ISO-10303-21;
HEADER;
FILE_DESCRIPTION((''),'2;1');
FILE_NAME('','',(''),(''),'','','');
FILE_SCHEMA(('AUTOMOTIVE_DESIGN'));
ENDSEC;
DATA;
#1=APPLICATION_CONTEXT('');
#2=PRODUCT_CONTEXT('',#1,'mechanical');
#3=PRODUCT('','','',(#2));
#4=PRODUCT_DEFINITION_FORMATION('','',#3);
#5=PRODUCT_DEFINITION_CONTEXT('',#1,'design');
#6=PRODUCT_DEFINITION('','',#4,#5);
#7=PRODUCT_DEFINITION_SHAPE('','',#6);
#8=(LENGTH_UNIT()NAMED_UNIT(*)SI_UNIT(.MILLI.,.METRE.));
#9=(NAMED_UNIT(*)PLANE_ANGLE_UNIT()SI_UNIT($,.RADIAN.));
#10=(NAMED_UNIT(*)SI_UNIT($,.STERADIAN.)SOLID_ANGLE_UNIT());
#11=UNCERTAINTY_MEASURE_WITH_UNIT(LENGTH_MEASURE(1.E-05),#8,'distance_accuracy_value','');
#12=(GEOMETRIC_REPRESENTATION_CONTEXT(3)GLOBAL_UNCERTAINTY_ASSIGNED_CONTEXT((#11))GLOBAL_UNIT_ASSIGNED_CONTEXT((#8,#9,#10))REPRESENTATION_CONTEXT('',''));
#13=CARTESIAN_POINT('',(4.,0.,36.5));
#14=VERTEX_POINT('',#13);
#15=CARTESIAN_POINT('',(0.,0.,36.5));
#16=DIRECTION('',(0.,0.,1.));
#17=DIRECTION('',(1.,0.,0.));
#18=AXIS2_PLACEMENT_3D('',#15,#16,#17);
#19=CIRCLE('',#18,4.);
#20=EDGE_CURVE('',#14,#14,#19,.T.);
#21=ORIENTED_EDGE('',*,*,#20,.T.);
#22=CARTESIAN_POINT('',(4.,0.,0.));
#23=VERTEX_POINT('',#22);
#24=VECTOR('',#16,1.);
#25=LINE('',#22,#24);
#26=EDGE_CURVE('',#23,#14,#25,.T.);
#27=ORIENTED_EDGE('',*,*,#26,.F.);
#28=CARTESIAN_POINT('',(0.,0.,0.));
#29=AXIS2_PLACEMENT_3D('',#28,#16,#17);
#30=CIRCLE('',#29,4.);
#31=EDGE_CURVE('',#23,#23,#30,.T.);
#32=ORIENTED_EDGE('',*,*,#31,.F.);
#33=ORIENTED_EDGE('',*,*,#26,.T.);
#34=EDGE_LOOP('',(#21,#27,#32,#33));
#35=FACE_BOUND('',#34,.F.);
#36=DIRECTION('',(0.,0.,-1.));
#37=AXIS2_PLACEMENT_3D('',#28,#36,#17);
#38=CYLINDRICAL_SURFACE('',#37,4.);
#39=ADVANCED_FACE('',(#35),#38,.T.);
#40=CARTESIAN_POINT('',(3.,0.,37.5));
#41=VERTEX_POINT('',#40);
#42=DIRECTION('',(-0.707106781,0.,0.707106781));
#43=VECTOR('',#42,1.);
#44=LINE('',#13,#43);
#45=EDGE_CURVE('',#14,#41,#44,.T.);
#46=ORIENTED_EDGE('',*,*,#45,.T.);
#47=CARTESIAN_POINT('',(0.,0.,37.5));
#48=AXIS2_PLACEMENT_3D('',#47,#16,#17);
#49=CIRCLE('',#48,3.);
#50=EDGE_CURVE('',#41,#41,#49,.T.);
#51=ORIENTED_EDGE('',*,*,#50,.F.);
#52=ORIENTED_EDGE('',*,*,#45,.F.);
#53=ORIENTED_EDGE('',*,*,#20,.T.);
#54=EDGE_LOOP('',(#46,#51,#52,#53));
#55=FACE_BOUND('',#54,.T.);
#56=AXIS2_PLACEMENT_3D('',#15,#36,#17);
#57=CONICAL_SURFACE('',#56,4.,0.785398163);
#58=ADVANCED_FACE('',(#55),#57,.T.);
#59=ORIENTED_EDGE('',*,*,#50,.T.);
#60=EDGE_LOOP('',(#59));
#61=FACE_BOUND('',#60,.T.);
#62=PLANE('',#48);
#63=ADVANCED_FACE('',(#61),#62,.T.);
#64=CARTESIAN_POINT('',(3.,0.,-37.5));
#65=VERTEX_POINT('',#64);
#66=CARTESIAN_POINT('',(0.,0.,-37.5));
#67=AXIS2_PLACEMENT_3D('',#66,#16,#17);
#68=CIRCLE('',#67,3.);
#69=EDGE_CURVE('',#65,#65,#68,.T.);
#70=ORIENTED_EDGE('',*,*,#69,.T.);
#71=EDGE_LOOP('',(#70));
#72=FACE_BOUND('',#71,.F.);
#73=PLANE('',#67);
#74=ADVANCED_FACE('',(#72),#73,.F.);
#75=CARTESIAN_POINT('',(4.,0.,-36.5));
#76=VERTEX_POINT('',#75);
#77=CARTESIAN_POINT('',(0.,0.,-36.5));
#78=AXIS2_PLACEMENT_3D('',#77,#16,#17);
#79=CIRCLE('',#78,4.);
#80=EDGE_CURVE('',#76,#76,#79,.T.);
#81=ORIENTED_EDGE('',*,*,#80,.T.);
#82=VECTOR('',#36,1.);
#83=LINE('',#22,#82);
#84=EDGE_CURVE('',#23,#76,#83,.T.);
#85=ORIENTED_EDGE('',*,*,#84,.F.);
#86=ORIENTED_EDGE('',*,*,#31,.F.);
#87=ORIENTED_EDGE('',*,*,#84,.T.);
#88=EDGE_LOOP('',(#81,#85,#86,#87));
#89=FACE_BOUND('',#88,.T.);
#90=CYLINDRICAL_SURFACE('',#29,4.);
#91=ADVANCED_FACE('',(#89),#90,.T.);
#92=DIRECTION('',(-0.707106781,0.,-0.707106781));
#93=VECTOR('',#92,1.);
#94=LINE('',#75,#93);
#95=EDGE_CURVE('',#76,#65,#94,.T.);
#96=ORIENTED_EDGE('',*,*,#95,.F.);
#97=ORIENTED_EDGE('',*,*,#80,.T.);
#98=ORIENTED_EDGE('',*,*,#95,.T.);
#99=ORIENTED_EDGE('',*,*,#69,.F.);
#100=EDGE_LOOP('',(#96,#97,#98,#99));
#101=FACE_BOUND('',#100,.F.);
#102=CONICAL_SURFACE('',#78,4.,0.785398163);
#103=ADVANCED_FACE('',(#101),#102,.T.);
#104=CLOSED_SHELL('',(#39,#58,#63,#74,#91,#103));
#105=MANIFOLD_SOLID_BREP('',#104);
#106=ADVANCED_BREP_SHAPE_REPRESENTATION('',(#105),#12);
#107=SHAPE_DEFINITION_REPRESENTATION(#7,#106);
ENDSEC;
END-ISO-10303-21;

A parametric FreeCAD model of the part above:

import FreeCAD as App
import Part
import Sketcher

V = App.Vector
Q = App.Units.Quantity


def edges_at(feature, points):
    """Names of the edges that pass closest to the given points."""
    edges = feature.Shape.Edges
    near = lambda p: min(range(len(edges)), key=lambda i: edges[i].distToShape(Part.Vertex(*p))[0])
    return sorted({f"Edge{near(p) + 1}" for p in points})

doc = App.newDocument("Part")
body = doc.addObject("PartDesign::Body", "Body")

sketch1 = body.newObject("Sketcher::SketchObject", "Sketch")
sketch1.AttachmentSupport = (doc.getObject("XY_Plane"), [""])
sketch1.MapMode = "FlatFace"
sketch1.addGeometry(Part.Circle(V(0, 0, 0), V(0, 0, 1), 4), False)
sketch1.addConstraint(Sketcher.Constraint("Coincident", 0, 3, -1, 1))
sketch1.addConstraint(Sketcher.Constraint("Diameter", 0, Q("8 mm")))
pad1 = body.newObject("PartDesign::Pad", "Pad")
pad1.Profile = sketch1
pad1.Length = 75
pad1.Midplane = True
doc.recompute()

chamfer = body.newObject("PartDesign::Chamfer", "Chamfer")
chamfer.Base = (pad1, edges_at(pad1, [(-4, 0, 37.5), (-4, 0, -37.5)]))
chamfer.Size = 1

doc.recompute()
